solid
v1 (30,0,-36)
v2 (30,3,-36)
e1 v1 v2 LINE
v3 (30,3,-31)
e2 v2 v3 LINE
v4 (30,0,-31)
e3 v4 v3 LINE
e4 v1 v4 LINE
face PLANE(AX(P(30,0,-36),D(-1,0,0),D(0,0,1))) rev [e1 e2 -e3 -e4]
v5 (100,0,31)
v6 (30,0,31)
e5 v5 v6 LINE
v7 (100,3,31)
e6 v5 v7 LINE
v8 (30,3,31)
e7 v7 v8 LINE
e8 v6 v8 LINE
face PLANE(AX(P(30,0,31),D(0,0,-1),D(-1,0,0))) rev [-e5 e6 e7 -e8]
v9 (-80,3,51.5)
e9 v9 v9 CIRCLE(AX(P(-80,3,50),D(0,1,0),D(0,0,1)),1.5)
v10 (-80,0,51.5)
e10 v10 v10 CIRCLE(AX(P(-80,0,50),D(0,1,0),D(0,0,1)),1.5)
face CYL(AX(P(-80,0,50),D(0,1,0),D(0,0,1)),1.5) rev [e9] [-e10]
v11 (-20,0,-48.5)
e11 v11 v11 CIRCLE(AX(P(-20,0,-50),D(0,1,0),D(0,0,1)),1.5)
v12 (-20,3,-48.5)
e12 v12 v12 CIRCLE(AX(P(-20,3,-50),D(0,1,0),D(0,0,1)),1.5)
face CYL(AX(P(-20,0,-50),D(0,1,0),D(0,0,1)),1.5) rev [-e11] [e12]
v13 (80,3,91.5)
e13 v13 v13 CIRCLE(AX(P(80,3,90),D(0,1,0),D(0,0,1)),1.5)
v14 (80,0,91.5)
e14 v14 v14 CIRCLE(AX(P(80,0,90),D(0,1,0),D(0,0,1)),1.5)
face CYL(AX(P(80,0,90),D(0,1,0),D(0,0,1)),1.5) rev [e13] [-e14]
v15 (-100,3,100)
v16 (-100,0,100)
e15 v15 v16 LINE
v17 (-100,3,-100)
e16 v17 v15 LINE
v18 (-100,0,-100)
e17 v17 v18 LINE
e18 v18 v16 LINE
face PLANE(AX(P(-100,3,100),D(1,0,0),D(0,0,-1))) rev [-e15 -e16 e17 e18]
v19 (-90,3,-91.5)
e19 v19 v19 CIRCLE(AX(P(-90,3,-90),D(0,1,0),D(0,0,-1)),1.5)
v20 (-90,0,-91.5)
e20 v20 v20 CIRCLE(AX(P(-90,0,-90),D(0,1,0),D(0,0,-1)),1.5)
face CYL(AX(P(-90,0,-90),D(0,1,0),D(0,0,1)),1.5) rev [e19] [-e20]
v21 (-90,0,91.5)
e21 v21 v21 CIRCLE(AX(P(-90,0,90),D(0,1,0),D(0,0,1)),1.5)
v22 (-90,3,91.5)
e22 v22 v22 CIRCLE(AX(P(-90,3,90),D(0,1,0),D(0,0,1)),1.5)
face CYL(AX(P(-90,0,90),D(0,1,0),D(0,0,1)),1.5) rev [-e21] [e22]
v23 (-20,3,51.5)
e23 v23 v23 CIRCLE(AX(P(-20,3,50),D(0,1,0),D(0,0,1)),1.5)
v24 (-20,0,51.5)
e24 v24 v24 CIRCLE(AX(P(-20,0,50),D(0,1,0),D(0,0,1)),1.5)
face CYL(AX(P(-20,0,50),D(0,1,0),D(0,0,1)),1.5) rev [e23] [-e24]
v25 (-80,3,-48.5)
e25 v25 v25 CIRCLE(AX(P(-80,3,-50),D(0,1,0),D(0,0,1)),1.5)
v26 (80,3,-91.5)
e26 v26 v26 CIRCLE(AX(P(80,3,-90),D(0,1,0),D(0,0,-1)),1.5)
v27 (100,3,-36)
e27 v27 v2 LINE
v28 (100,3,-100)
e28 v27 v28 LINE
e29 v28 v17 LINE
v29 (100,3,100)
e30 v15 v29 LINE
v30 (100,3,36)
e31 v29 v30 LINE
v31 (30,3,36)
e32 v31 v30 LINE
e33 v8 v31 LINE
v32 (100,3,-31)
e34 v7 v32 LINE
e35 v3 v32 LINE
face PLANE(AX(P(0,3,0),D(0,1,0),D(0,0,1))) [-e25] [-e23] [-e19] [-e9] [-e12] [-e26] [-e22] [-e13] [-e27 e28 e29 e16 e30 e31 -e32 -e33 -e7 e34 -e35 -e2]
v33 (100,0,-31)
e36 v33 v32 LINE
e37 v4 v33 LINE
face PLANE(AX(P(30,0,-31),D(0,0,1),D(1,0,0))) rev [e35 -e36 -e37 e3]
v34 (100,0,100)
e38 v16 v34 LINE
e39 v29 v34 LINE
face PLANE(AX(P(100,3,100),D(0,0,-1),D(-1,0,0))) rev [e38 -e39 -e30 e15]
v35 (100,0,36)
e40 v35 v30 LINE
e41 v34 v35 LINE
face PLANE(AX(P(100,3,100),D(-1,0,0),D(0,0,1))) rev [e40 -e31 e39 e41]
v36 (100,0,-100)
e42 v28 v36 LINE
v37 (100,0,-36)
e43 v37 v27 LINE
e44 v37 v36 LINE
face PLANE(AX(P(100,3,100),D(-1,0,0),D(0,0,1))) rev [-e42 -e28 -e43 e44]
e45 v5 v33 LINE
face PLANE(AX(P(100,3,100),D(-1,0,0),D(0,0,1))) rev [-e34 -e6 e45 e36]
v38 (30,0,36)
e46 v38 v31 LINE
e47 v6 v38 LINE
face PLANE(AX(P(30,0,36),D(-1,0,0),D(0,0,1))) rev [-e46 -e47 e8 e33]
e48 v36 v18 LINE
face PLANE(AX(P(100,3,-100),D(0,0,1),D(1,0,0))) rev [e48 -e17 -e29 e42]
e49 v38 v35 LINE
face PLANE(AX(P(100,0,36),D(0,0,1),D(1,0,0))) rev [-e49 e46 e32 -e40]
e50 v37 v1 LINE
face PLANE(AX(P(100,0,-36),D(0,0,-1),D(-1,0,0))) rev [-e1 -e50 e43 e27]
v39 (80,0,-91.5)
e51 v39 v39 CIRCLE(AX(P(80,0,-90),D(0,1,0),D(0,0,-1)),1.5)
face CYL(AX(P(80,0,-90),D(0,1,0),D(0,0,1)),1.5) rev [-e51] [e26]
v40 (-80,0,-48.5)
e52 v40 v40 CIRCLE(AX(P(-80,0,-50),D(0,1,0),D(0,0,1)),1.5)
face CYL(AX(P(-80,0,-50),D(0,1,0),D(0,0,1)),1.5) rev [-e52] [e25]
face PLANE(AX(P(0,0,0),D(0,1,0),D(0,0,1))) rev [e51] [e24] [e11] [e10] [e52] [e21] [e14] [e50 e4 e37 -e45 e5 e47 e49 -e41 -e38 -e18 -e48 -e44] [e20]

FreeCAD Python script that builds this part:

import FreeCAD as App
import Part
import Sketcher


def add_polygon(sketch, points):
    """Adds a closed chain of lines whose ends are joined by coincident constraints."""
    first, n = sketch.GeometryCount, len(points)
    for a, b in zip(points, points[1:] + points[:1]):
        sketch.addGeometry(Part.LineSegment(App.Vector(*a, 0), App.Vector(*b, 0)), False)
    for i in range(n):
        sketch.addConstraint(Sketcher.Constraint("Coincident", first + i, 2, first + (i + 1) % n, 1))

doc = App.newDocument("Part")
body = doc.addObject("PartDesign::Body", "Body")

# Sketch on XZ plane
sketch1 = doc.addObject("Sketcher::SketchObject", "Sketch")
body.addObject(sketch1)
sketch1.AttachmentSupport = (doc.XZ_Plane, [""])
sketch1.MapMode = "FlatFace"
add_polygon(sketch1, [(-100, -100), (-100, 100), (100, 100), (100, -100)])  # lines 0-3
sketch1.addConstraint([
    Sketcher.Constraint("Vertical", 0),
    Sketcher.Constraint("Horizontal", 1),
    Sketcher.Constraint("Vertical", 2),
    Sketcher.Constraint("Horizontal", 3),
    Sketcher.Constraint("Symmetric", 0, 2, 2, 2, -1, 1),
    Sketcher.Constraint("Equal", 3, 0),
    Sketcher.Constraint("DistanceX", 1, 1, 1, 2, 200.0),
])
pad1 = doc.addObject("PartDesign::Pad", "Pad")
body.addObject(pad1)
pad1.Profile = sketch1
pad1.Length = 3
pad1.Reversed = True

# Sketch on XZ plane
sketch2 = doc.addObject("Sketcher::SketchObject", "Sketch001")
body.addObject(sketch2)
sketch2.AttachmentSupport = (doc.XZ_Plane, [""])
sketch2.MapMode = "FlatFace"
sketch2.AttachmentOffset = App.Placement(App.Vector(0, 0, -3), App.Rotation())
sketch2.addGeometry([
    Part.Circle(App.Vector(-90, 90, 0), App.Vector(0, 0, 1), 1.5),
    Part.Circle(App.Vector(80, 90, 0), App.Vector(0, 0, 1), 1.5),
    Part.Circle(App.Vector(80, -90, 0), App.Vector(0, 0, 1), 1.5),
    Part.Circle(App.Vector(-90, -90, 0), App.Vector(0, 0, 1), 1.5),
], False)
sketch2.addConstraint([
    Sketcher.Constraint("Equal", 0, 1),
    Sketcher.Constraint("Equal", 1, 2),
    Sketcher.Constraint("Equal", 2, 3),
    Sketcher.Constraint("Symmetric", 1, 3, 2, 3, -1),
    Sketcher.Constraint("Symmetric", 0, 3, 3, 3, -1),
    Sketcher.Constraint("Horizontal", 0, 3, 1, 3),
    Sketcher.Constraint("Diameter", 0, 3.0),
    Sketcher.Constraint("DistanceX", 0, 3, -1, 1, 90.0),
    Sketcher.Constraint("DistanceY", -1, 1, 0, 3, 90.0),
    Sketcher.Constraint("DistanceX", -1, 1, 1, 3, 80.0),
])
pocket1 = doc.addObject("PartDesign::Pocket", "Pocket")
body.addObject(pocket1)
pocket1.Profile = sketch2
pocket1.Length = 3
pocket1.Reversed = True

# Sketch on XZ plane
sketch3 = doc.addObject("Sketcher::SketchObject", "Sketch002")
body.addObject(sketch3)
sketch3.AttachmentSupport = (doc.XZ_Plane, [""])
sketch3.MapMode = "FlatFace"
sketch3.AttachmentOffset = App.Placement(App.Vector(0, 0, -3), App.Rotation())
add_polygon(sketch3, [(30, 31), (30, 36), (100, 36), (100, 31)])  # lines 0-3
add_polygon(sketch3, [(30, -36), (30, -31), (100, -31), (100, -36)])  # lines 4-7
sketch3.addConstraint([
    Sketcher.Constraint("Vertical", 0),
    Sketcher.Constraint("Horizontal", 1),
    Sketcher.Constraint("Vertical", 2),
    Sketcher.Constraint("Horizontal", 3),
    Sketcher.Constraint("Vertical", 4),
    Sketcher.Constraint("Horizontal", 5),
    Sketcher.Constraint("Vertical", 6),
    Sketcher.Constraint("Horizontal", 7),
    Sketcher.Constraint("Symmetric", 3, 2, 4, 2, -1),
    Sketcher.Constraint("Symmetric", 1, 2, 6, 2, -1),
    Sketcher.Constraint("DistanceX", 1, 1, 1, 2, 70.0),
    Sketcher.Constraint("DistanceY", 0, 1, 0, 2, 5.0),
    Sketcher.Constraint("DistanceX", -1, 1, 0, 2, 30.0),
    Sketcher.Constraint("DistanceY", -1, 1, 0, 2, 36.0),
])
pocket2 = doc.addObject("PartDesign::Pocket", "Pocket001")
body.addObject(pocket2)
pocket2.Profile = sketch3
pocket2.Length = 3
pocket2.Reversed = True

# Sketch on XZ plane
sketch4 = doc.addObject("Sketcher::SketchObject", "Sketch003")
body.addObject(sketch4)
sketch4.AttachmentSupport = (doc.XZ_Plane, [""])
sketch4.MapMode = "FlatFace"
sketch4.AttachmentOffset = App.Placement(App.Vector(0, 0, -3), App.Rotation())
sketch4.addGeometry([
    Part.Circle(App.Vector(-80, 50, 0), App.Vector(0, 0, 1), 1.5),
    Part.Circle(App.Vector(-20, 50, 0), App.Vector(0, 0, 1), 1.5),
    Part.Circle(App.Vector(-80, -50, 0), App.Vector(0, 0, 1), 1.5),
    Part.Circle(App.Vector(-20, -50, 0), App.Vector(0, 0, 1), 1.5),
], False)
sketch4.addConstraint([
    Sketcher.Constraint("Equal", 0, 1),
    Sketcher.Constraint("Equal", 1, 2),
    Sketcher.Constraint("Equal", 2, 3),
    Sketcher.Constraint("Symmetric", 0, 3, 2, 3, -1),
    Sketcher.Constraint("Symmetric", 1, 3, 3, 3, -1),
    Sketcher.Constraint("Horizontal", 0, 3, 1, 3),
    Sketcher.Constraint("Diameter", 0, 3.0),
    Sketcher.Constraint("DistanceX", 0, 3, -1, 1, 80.0),
    Sketcher.Constraint("DistanceY", -1, 1, 0, 3, 50.0),
    Sketcher.Constraint("DistanceX", 1, 3, -1, 1, 20.0),
])
pocket3 = doc.addObject("PartDesign::Pocket", "Pocket002")
body.addObject(pocket3)
pocket3.Profile = sketch4
pocket3.Length = 3
pocket3.Reversed = True

doc.recompute()
